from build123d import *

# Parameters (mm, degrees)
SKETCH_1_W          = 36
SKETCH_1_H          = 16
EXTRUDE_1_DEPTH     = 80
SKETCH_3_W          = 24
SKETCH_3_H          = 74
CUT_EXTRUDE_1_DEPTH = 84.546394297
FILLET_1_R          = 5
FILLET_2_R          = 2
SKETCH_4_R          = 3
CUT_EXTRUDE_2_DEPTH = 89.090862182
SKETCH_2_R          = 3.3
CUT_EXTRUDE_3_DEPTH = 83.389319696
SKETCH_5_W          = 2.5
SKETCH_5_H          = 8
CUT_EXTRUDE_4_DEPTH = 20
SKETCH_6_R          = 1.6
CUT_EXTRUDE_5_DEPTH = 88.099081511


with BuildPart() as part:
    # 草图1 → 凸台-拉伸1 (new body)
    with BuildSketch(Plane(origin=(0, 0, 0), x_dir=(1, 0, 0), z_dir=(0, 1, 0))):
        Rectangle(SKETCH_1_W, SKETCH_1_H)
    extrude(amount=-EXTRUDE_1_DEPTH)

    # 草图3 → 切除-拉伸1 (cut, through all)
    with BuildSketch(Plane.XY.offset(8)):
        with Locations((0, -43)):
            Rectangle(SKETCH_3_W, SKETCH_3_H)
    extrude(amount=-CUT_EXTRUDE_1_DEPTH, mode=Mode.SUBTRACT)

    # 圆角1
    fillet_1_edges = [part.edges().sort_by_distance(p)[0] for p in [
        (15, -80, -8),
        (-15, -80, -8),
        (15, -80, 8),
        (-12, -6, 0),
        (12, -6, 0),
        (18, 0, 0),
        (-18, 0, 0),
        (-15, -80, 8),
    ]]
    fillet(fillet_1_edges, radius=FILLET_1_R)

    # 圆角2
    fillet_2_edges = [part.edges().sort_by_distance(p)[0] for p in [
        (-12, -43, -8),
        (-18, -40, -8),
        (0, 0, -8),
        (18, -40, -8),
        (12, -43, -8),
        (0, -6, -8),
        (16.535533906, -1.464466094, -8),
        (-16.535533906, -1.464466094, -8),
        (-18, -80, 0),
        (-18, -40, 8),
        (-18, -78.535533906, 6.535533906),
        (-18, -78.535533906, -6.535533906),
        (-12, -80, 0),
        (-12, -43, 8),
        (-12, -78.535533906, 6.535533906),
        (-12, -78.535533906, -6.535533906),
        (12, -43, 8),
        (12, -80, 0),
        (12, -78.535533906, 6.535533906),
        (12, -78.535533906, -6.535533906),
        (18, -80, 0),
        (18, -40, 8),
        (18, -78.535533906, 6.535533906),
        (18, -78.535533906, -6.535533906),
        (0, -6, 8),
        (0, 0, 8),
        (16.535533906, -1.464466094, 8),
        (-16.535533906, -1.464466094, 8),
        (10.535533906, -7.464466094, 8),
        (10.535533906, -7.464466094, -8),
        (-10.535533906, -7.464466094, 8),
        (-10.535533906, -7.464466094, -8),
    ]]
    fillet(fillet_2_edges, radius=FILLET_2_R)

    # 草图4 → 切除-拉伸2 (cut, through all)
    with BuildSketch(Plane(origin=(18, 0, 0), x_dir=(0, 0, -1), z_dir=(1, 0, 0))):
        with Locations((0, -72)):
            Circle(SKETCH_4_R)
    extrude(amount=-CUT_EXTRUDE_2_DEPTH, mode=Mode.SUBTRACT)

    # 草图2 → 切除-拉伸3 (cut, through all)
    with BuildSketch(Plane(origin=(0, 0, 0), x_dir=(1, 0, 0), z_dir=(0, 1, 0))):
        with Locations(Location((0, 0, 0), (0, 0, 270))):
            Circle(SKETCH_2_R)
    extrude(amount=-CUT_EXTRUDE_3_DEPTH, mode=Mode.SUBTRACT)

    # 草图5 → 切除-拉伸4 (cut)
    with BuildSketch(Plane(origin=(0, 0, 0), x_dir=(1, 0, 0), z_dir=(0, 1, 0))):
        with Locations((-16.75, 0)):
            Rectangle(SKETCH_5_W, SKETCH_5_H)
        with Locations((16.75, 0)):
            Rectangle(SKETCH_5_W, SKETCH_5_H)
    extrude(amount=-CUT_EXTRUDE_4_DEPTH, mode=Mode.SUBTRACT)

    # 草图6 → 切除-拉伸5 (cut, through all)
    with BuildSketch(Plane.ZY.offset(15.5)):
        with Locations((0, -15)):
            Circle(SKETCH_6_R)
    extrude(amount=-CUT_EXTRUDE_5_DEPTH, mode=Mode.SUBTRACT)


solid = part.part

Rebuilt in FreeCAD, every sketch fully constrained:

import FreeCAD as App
import Part
import Sketcher

V = App.Vector
Q = App.Units.Quantity


def edges_at(feature, points):
    """Names of the edges that pass closest to the given points."""
    edges = feature.Shape.Edges
    near = lambda p: min(range(len(edges)), key=lambda i: edges[i].distToShape(Part.Vertex(*p))[0])
    return sorted({f"Edge{near(p) + 1}" for p in points})


def add_polygon(sketch, points):
    """Adds a closed chain of lines whose ends are joined by coincident constraints."""
    first, n = sketch.GeometryCount, len(points)
    for a, b in zip(points, points[1:] + points[:1]):
        sketch.addGeometry(Part.LineSegment(App.Vector(*a, 0), App.Vector(*b, 0)), False)
    for i in range(n):
        sketch.addConstraint(Sketcher.Constraint("Coincident", first + i, 2, first + (i + 1) % n, 1))

doc = App.newDocument("Part")
body = doc.addObject("PartDesign::Body", "Body")

sketch1 = body.newObject("Sketcher::SketchObject", "Sketch")
sketch1.AttachmentSupport = (doc.getObject("XZ_Plane"), [""])
sketch1.MapMode = "FlatFace"
add_polygon(sketch1, [(-18, -8), (-18, 8), (18, 8), (18, -8)])
sketch1.addConstraint([
    Sketcher.Constraint("Vertical", 0),
    Sketcher.Constraint("Horizontal", 1),
    Sketcher.Constraint("Vertical", 2),
    Sketcher.Constraint("Horizontal", 3),
    Sketcher.Constraint("Symmetric", 0, 2, 2, 2, -1, 1),
    Sketcher.Constraint("DistanceX", 1, 1, 1, 2, Q("36 mm")),
    Sketcher.Constraint("DistanceY", 0, 1, 0, 2, Q("16 mm")),
])
pad1 = body.newObject("PartDesign::Pad", "Pad")
pad1.Profile = sketch1
pad1.Length = 80

sketch2 = body.newObject("Sketcher::SketchObject", "Sketch001")
sketch2.AttachmentSupport = (doc.getObject("XY_Plane"), [""])
sketch2.MapMode = "FlatFace"
sketch2.AttachmentOffset = App.Placement(V(0, 0, 8), App.Rotation())
add_polygon(sketch2, [(-12, -6), (-12, -80), (12, -80), (12, -6)])
sketch2.addConstraint([
    Sketcher.Constraint("Vertical", 0),
    Sketcher.Constraint("Horizontal", 1),
    Sketcher.Constraint("Vertical", 2),
    Sketcher.Constraint("Horizontal", 3),
    Sketcher.Constraint("DistanceX", 1, 1, 1, 2, Q("24 mm")),
    Sketcher.Constraint("DistanceY", 0, 2, 0, 1, Q("74 mm")),
    Sketcher.Constraint("DistanceX", 0, 2, -1, 1, Q("12 mm")),
    Sketcher.Constraint("DistanceY", 0, 2, -1, 1, Q("80 mm")),
])
pocket1 = body.newObject("PartDesign::Pocket", "Pocket")
pocket1.Profile = sketch2
pocket1.Type = "ThroughAll"
doc.recompute()

fillet = body.newObject("PartDesign::Fillet", "Fillet")
fillet.Base = (pocket1, edges_at(pocket1, [
    (15, -80, -8),
    (-15, -80, -8),
    (15, -80, 8),
    (-12, -6, 0),
    (12, -6, 0),
    (18, 0, 0),
    (-18, 0, 0),
    (-15, -80, 8),
]))
fillet.Radius = 5
doc.recompute()

fillet2 = body.newObject("PartDesign::Fillet", "Fillet001")
fillet2.Base = (fillet, edges_at(fillet, [
    (-12, -43, -8),
    (-18, -40, -8),
    (0, 0, -8),
    (18, -40, -8),
    (12, -43, -8),
    (0, -6, -8),
    (16.536, -1.464, -8),
    (-16.536, -1.464, -8),
    (-18, -80, 0),
    (-18, -40, 8),
    (-18, -78.536, 6.536),
    (-18, -78.536, -6.536),
    (-12, -80, 0),
    (-12, -43, 8),
    (-12, -78.536, 6.536),
    (-12, -78.536, -6.536),
    (12, -43, 8),
    (12, -80, 0),
    (12, -78.536, 6.536),
    (12, -78.536, -6.536),
    (18, -80, 0),
    (18, -40, 8),
    (18, -78.536, 6.536),
    (18, -78.536, -6.536),
    (0, -6, 8),
    (0, 0, 8),
    (16.536, -1.464, 8),
    (-16.536, -1.464, 8),
    (10.536, -7.464, 8),
    (10.536, -7.464, -8),
    (-10.536, -7.464, 8),
    (-10.536, -7.464, -8),
]))
fillet2.Radius = 2

sketch3 = body.newObject("Sketcher::SketchObject", "Sketch002")
sketch3.AttachmentSupport = (doc.getObject("YZ_Plane"), [""])
sketch3.MapMode = "FlatFace"
sketch3.AttachmentOffset = App.Placement(V(0, 0, 18), App.Rotation())
sketch3.addGeometry(Part.Circle(V(-72, 0, 0), V(0, 0, 1), 3), False)
sketch3.addConstraint([
    Sketcher.Constraint("PointOnObject", 0, 3, -1),
    Sketcher.Constraint("Diameter", 0, Q("6 mm")),
    Sketcher.Constraint("DistanceX", 0, 3, -1, 1, Q("72 mm")),
])
pocket2 = body.newObject("PartDesign::Pocket", "Pocket001")
pocket2.Profile = sketch3
pocket2.Type = "ThroughAll"

sketch4 = body.newObject("Sketcher::SketchObject", "Sketch003")
sketch4.AttachmentSupport = (doc.getObject("XZ_Plane"), [""])
sketch4.MapMode = "FlatFace"
sketch4.addGeometry(Part.Circle(V(0, 0, 0), V(0, 0, 1), 3.3), False)
sketch4.addConstraint([
    Sketcher.Constraint("Coincident", 0, 3, -1, 1),
    Sketcher.Constraint("Diameter", 0, Q("6.6 mm")),
])
pocket3 = body.newObject("PartDesign::Pocket", "Pocket002")
pocket3.Profile = sketch4
pocket3.Type = "ThroughAll"
pocket3.Reversed = True

sketch5 = body.newObject("Sketcher::SketchObject", "Sketch004")
sketch5.AttachmentSupport = (doc.getObject("XZ_Plane"), [""])
sketch5.MapMode = "FlatFace"
add_polygon(sketch5, [(-18, -4), (-18, 4), (-15.5, 4), (-15.5, -4)])
add_polygon(sketch5, [(15.5, -4), (15.5, 4), (18, 4), (18, -4)])
sketch5.addConstraint([
    Sketcher.Constraint("Vertical", 0),
    Sketcher.Constraint("Horizontal", 1),
    Sketcher.Constraint("Vertical", 2),
    Sketcher.Constraint("Horizontal", 3),
    Sketcher.Constraint("Vertical", 4),
    Sketcher.Constraint("Horizontal", 5),
    Sketcher.Constraint("Vertical", 6),
    Sketcher.Constraint("Horizontal", 7),
    Sketcher.Constraint("Symmetric", 2, 2, 4, 2, -1, 1),
    Sketcher.Constraint("Symmetric", 0, 2, 6, 2, -1, 1),
    Sketcher.Constraint("Horizontal", 1, 2, 4, 2),
    Sketcher.Constraint("DistanceY", 0, 1, 0, 2, Q("8 mm")),
    Sketcher.Constraint("DistanceX", 1, 1, 1, 2, Q("2.5 mm")),
    Sketcher.Constraint("DistanceX", 0, 2, -1, 1, Q("18 mm")),
])
pocket4 = body.newObject("PartDesign::Pocket", "Pocket003")
pocket4.Profile = sketch5
pocket4.Length = 20
pocket4.Reversed = True

sketch6 = body.newObject("Sketcher::SketchObject", "Sketch005")
sketch6.AttachmentSupport = (doc.getObject("YZ_Plane"), [""])
sketch6.MapMode = "FlatFace"
sketch6.AttachmentOffset = App.Placement(V(0, 0, -15.5), App.Rotation())
sketch6.addGeometry(Part.Circle(V(-15, 0, 0), V(0, 0, 1), 1.6), False)
sketch6.addConstraint([
    Sketcher.Constraint("PointOnObject", 0, 3, -1),
    Sketcher.Constraint("Diameter", 0, Q("3.2 mm")),
    Sketcher.Constraint("DistanceX", 0, 3, -1, 1, Q("15 mm")),
])
pocket5 = body.newObject("PartDesign::Pocket", "Pocket004")
pocket5.Profile = sketch6
pocket5.Type = "ThroughAll"
pocket5.Reversed = True

doc.recompute()
